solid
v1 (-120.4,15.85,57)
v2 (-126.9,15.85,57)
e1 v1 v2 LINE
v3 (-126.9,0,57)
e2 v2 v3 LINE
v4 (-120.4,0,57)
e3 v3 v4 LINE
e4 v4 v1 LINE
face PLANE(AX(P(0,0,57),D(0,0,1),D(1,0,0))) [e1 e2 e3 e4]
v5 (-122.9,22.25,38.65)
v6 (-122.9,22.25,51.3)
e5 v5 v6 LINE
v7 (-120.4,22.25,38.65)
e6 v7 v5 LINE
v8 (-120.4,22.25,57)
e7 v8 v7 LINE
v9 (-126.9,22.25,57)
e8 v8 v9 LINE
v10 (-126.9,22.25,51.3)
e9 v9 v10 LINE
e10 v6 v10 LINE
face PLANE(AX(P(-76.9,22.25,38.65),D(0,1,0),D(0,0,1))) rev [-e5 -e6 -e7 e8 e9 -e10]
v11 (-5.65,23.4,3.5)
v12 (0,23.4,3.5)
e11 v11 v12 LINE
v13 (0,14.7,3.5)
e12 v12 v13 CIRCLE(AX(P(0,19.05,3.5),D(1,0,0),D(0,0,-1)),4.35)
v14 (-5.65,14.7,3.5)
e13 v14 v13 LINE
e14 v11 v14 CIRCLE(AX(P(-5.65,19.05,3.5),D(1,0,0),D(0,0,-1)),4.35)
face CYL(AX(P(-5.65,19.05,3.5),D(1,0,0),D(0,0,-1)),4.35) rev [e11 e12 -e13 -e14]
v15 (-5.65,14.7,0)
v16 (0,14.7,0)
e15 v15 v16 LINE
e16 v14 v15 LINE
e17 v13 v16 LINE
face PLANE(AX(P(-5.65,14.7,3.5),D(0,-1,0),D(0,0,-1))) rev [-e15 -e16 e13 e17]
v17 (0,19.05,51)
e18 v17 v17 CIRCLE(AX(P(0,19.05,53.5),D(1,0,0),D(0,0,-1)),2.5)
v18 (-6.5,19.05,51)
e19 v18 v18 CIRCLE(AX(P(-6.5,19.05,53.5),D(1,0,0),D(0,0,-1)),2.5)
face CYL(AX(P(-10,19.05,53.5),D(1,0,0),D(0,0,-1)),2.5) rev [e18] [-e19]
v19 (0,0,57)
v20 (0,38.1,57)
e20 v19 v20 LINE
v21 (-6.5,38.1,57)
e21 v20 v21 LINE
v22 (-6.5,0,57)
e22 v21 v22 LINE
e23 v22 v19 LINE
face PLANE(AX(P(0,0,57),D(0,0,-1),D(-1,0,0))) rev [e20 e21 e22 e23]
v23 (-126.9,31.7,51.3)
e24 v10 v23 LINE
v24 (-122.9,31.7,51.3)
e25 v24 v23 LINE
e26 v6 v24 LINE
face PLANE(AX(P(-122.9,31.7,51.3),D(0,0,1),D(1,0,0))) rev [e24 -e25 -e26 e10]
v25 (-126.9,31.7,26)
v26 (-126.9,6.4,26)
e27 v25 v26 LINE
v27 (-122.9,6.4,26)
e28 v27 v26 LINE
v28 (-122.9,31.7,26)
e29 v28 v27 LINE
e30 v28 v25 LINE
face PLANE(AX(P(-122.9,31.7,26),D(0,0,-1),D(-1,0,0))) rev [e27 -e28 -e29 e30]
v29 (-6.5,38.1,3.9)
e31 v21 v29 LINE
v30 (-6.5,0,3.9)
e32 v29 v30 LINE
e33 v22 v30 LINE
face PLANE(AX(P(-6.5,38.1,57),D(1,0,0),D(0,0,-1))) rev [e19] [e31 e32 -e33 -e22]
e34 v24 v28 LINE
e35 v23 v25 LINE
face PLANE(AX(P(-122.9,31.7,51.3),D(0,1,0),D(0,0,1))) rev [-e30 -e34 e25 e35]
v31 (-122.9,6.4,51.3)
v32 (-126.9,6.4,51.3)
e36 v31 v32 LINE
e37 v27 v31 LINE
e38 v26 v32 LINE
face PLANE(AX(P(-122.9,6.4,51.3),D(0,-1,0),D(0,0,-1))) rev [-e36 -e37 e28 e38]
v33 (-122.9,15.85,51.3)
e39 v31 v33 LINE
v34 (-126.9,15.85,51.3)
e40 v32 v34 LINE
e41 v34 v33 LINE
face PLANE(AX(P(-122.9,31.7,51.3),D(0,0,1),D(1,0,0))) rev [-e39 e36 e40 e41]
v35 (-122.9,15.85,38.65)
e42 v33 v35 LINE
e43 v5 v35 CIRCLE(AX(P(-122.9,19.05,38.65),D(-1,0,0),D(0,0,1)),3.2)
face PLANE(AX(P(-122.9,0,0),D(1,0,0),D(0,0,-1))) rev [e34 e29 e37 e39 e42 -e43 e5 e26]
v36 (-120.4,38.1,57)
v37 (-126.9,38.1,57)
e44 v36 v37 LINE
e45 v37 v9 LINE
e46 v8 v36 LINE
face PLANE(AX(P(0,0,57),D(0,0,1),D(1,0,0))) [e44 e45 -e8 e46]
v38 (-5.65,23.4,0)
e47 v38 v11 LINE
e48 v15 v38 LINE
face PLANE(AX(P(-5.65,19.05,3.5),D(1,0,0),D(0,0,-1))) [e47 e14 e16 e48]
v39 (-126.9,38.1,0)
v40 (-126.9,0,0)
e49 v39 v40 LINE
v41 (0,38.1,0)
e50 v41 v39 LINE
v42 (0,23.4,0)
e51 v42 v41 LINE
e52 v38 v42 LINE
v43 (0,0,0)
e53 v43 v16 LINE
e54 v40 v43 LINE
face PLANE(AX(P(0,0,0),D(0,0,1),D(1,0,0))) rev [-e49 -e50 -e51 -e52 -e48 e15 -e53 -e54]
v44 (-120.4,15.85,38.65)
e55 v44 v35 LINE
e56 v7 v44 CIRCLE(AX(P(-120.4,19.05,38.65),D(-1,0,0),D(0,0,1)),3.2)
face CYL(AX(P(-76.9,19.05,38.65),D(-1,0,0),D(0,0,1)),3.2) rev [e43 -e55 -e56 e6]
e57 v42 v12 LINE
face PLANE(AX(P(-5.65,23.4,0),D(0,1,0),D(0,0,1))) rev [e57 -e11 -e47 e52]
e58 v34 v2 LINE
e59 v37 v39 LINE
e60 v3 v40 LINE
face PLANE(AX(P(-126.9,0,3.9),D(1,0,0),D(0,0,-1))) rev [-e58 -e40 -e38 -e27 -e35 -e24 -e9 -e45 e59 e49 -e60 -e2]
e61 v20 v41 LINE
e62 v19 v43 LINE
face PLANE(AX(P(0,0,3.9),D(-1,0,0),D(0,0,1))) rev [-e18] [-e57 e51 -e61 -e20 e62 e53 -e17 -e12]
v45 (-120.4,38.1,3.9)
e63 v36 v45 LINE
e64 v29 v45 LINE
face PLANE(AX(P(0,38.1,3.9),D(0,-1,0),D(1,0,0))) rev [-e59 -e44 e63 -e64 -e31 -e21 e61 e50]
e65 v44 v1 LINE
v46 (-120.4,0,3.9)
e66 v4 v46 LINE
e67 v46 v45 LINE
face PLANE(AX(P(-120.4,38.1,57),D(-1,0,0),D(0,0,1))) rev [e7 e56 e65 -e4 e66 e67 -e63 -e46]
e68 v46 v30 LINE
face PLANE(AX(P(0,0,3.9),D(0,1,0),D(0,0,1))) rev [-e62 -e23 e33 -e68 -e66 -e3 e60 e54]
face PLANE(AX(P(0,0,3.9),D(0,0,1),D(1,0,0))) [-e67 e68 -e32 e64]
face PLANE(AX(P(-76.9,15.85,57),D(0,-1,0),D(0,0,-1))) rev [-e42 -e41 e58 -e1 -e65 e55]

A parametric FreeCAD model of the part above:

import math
import FreeCAD as App
import Part
import Sketcher
from FreeCAD import Vector

doc = App.newDocument("Part")
body = doc.addObject("PartDesign::Body", "Body")

# Sketch on XY plane
sketch1 = body.newObject("Sketcher::SketchObject", "Sketch")
sketch1.AttachmentSupport = (doc.getObject("XY_Plane"), [""])
sketch1.MapMode = "FlatFace"
sketch1.addGeometry(Part.LineSegment(Vector(-127, 38, 0), Vector(-127, 0, 0)), False)
sketch1.addGeometry(Part.LineSegment(Vector(-127, 0, 0), Vector(0, 0, 0)), False)
sketch1.addGeometry(Part.LineSegment(Vector(0, 0, 0), Vector(0, 38, 0)), False)
sketch1.addGeometry(Part.LineSegment(Vector(0, 38, 0), Vector(-127, 38, 0)), False)
sketch1.addConstraint(Sketcher.Constraint("Coincident", 0, 2, 1, 1))
sketch1.addConstraint(Sketcher.Constraint("Coincident", 1, 2, 2, 1))
sketch1.addConstraint(Sketcher.Constraint("Coincident", 2, 2, 3, 1))
sketch1.addConstraint(Sketcher.Constraint("Coincident", 3, 2, 0, 1))
sketch1.addConstraint(Sketcher.Constraint("Vertical", 0))
sketch1.addConstraint(Sketcher.Constraint("Horizontal", 1))
sketch1.addConstraint(Sketcher.Constraint("Vertical", 2))
sketch1.addConstraint(Sketcher.Constraint("Horizontal", 3))
sketch1.addConstraint(Sketcher.Constraint("Coincident", 1, 2, -1, 1))
sketch1.addConstraint(Sketcher.Constraint("DistanceX", 1, 1, 1, 2, 126.9))
sketch1.addConstraint(Sketcher.Constraint("DistanceY", 0, 2, 0, 1, 38.1))
pad1 = body.newObject("PartDesign::Pad", "Pad")
pad1.Profile = sketch1
pad1.Length = 3.9

# Sketch on XY plane
sketch2 = body.newObject("Sketcher::SketchObject", "Sketch001")
sketch2.AttachmentSupport = (doc.getObject("XY_Plane"), [""])
sketch2.MapMode = "FlatFace"
sketch2.AttachmentOffset = App.Placement(Vector(0, 0, 3.9), App.Rotation())
sketch2.addGeometry(Part.LineSegment(Vector(-127, 38, 0), Vector(-127, 0, 0)), False)
sketch2.addGeometry(Part.LineSegment(Vector(-127, 0, 0), Vector(-120, 0, 0)), False)
sketch2.addGeometry(Part.LineSegment(Vector(-120, 0, 0), Vector(-120, 38, 0)), False)
sketch2.addGeometry(Part.LineSegment(Vector(-120, 38, 0), Vector(-127, 38, 0)), False)
sketch2.addGeometry(Part.LineSegment(Vector(-6, 38, 0), Vector(-6, 0, 0)), False)
sketch2.addGeometry(Part.LineSegment(Vector(-6, 0, 0), Vector(0, 0, 0)), False)
sketch2.addGeometry(Part.LineSegment(Vector(0, 0, 0), Vector(0, 38, 0)), False)
sketch2.addGeometry(Part.LineSegment(Vector(0, 38, 0), Vector(-6, 38, 0)), False)
sketch2.addConstraint(Sketcher.Constraint("Coincident", 0, 2, 1, 1))
sketch2.addConstraint(Sketcher.Constraint("Coincident", 1, 2, 2, 1))
sketch2.addConstraint(Sketcher.Constraint("Coincident", 2, 2, 3, 1))
sketch2.addConstraint(Sketcher.Constraint("Coincident", 3, 2, 0, 1))
sketch2.addConstraint(Sketcher.Constraint("Coincident", 4, 2, 5, 1))
sketch2.addConstraint(Sketcher.Constraint("Coincident", 5, 2, 6, 1))
sketch2.addConstraint(Sketcher.Constraint("Coincident", 6, 2, 7, 1))
sketch2.addConstraint(Sketcher.Constraint("Coincident", 7, 2, 4, 1))
sketch2.addConstraint(Sketcher.Constraint("Vertical", 0))
sketch2.addConstraint(Sketcher.Constraint("Horizontal", 1))
sketch2.addConstraint(Sketcher.Constraint("Vertical", 2))
sketch2.addConstraint(Sketcher.Constraint("Horizontal", 3))
sketch2.addConstraint(Sketcher.Constraint("Vertical", 4))
sketch2.addConstraint(Sketcher.Constraint("Horizontal", 5))
sketch2.addConstraint(Sketcher.Constraint("Vertical", 6))
sketch2.addConstraint(Sketcher.Constraint("Horizontal", 7))
sketch2.addConstraint(Sketcher.Constraint("Coincident", 5, 2, -1, 1))
sketch2.addConstraint(Sketcher.Constraint("PointOnObject", 0, 2, -1))
sketch2.addConstraint(Sketcher.Constraint("Horizontal", 3, 2, 6, 2))
sketch2.addConstraint(Sketcher.Constraint("Equal", 3, 5))
sketch2.addConstraint(Sketcher.Constraint("DistanceX", 1, 1, 1, 2, 6.5))
sketch2.addConstraint(Sketcher.Constraint("DistanceY", 0, 2, 0, 1, 38.1))
sketch2.addConstraint(Sketcher.Constraint("DistanceX", 0, 2, -1, 1, 126.9))
pad2 = body.newObject("PartDesign::Pad", "Pad001")
pad2.Profile = sketch2
pad2.Length = 53.1

# Sketch on YZ plane
sketch3 = body.newObject("Sketcher::SketchObject", "Sketch002")
sketch3.AttachmentSupport = (doc.getObject("YZ_Plane"), [""])
sketch3.MapMode = "FlatFace"
sketch3.AttachmentOffset = App.Placement(Vector(0, 0, -126.9), App.Rotation())
sketch3.addGeometry(Part.LineSegment(Vector(31.7, 26, 0), Vector(6.4, 26, 0)), False)
sketch3.addGeometry(Part.LineSegment(Vector(6.4, 26, 0), Vector(6.4, 51.3, 0)), False)
sketch3.addGeometry(Part.LineSegment(Vector(6.4, 51.3, 0), Vector(31.7, 51.3, 0)), False)
sketch3.addGeometry(Part.LineSegment(Vector(31.7, 51.3, 0), Vector(31.7, 26, 0)), False)
sketch3.addGeometry(Part.Circle(Vector(19.1, 38.6, 0), Vector(0, 0, 1), 3.2), False)
sketch3.addConstraint(Sketcher.Constraint("Coincident", 0, 2, 1, 1))
sketch3.addConstraint(Sketcher.Constraint("Coincident", 1, 2, 2, 1))
sketch3.addConstraint(Sketcher.Constraint("Coincident", 2, 2, 3, 1))
sketch3.addConstraint(Sketcher.Constraint("Coincident", 3, 2, 0, 1))
sketch3.addConstraint(Sketcher.Constraint("Horizontal", 0))
sketch3.addConstraint(Sketcher.Constraint("Vertical", 1))
sketch3.addConstraint(Sketcher.Constraint("Horizontal", 2))
sketch3.addConstraint(Sketcher.Constraint("Vertical", 3))
sketch3.addConstraint(Sketcher.Constraint("Equal", 2, 1))
sketch3.addConstraint(Sketcher.Constraint("Diameter", 4, 6.4))
sketch3.addConstraint(Sketcher.Constraint("DistanceX", 0, 2, 0, 1, 25.3))
sketch3.addConstraint(Sketcher.Constraint("DistanceY", -1, 1, 0, 2, 26.0))
sketch3.addConstraint(Sketcher.Constraint("DistanceX", -1, 1, 0, 2, 6.4))
sketch3.addConstraint(Sketcher.Constraint("DistanceX", -1, 1, 4, 3, 19.05))
sketch3.addConstraint(Sketcher.Constraint("DistanceY", -1, 1, 4, 3, 38.65))
pocket1 = body.newObject("PartDesign::Pocket", "Pocket")
pocket1.Profile = sketch3
pocket1.Length = 4
pocket1.Reversed = True

# Sketch on YZ plane
sketch4 = body.newObject("Sketcher::SketchObject", "Sketch003")
sketch4.AttachmentSupport = (doc.getObject("YZ_Plane"), [""])
sketch4.MapMode = "FlatFace"
sketch4.AttachmentOffset = App.Placement(Vector(0, 0, -126.9), App.Rotation())
sketch4.addGeometry(Part.LineSegment(Vector(22.2, 57, 0), Vector(22.2, 38.6, 0)), False)
sketch4.addGeometry(Part.ArcOfCircle(Part.Circle(Vector(19.1, 38.6, 0), Vector(0, 0, 1), 3.2), math.radians(180), math.radians(360)), False)
sketch4.addGeometry(Part.LineSegment(Vector(15.8, 38.6, 0), Vector(15.8, 57, 0)), False)
sketch4.addGeometry(Part.LineSegment(Vector(15.8, 57, 0), Vector(22.2, 57, 0)), False)
sketch4.addConstraint(Sketcher.Constraint("Tangent", 0, 2, 1, 2))
sketch4.addConstraint(Sketcher.Constraint("Tangent", 1, 1, 2, 1))
sketch4.addConstraint(Sketcher.Constraint("Coincident", 2, 2, 3, 1))
sketch4.addConstraint(Sketcher.Constraint("Coincident", 3, 2, 0, 1))
sketch4.addConstraint(Sketcher.Constraint("Vertical", 0))
sketch4.addConstraint(Sketcher.Constraint("Vertical", 2))
sketch4.addConstraint(Sketcher.Constraint("Horizontal", 3))
sketch4.addConstraint(Sketcher.Constraint("Radius", 1, 3.2))
sketch4.addConstraint(Sketcher.Constraint("DistanceY", -1, 1, 2, 2, 57.0))
sketch4.addConstraint(Sketcher.Constraint("DistanceY", 0, 2, 0, 1, 18.35))
sketch4.addConstraint(Sketcher.Constraint("DistanceX", -1, 1, 1, 3, 19.05))
pocket2 = body.newObject("PartDesign::Pocket", "Pocket001")
pocket2.Profile = sketch4
pocket2.Length = 50
pocket2.Reversed = True

# Sketch on YZ plane
sketch5 = body.newObject("Sketcher::SketchObject", "Sketch004")
sketch5.AttachmentSupport = (doc.getObject("YZ_Plane"), [""])
sketch5.MapMode = "FlatFace"
sketch5.addGeometry(Part.LineSegment(Vector(14.7, 3.5, 0), Vector(14.7, 0, 0)), False)
sketch5.addGeometry(Part.LineSegment(Vector(14.7, 0, 0), Vector(23.4, 0, 0)), False)
sketch5.addGeometry(Part.LineSegment(Vector(23.4, 0, 0), Vector(23.4, 3.5, 0)), False)
sketch5.addGeometry(Part.ArcOfCircle(Part.Circle(Vector(19.1, 3.5, 0), Vector(0, 0, 1), 4.3), math.radians(0), math.radians(180)), False)
sketch5.addConstraint(Sketcher.Constraint("Coincident", 0, 2, 1, 1))
sketch5.addConstraint(Sketcher.Constraint("Coincident", 1, 2, 2, 1))
sketch5.addConstraint(Sketcher.Constraint("Tangent", 2, 2, 3, 1))
sketch5.addConstraint(Sketcher.Constraint("Tangent", 3, 2, 0, 1))
sketch5.addConstraint(Sketcher.Constraint("Vertical", 0))
sketch5.addConstraint(Sketcher.Constraint("Horizontal", 1))
sketch5.addConstraint(Sketcher.Constraint("Vertical", 2))
sketch5.addConstraint(Sketcher.Constraint("PointOnObject", 0, 2, -1))
sketch5.addConstraint(Sketcher.Constraint("Radius", 3, 4.35))
sketch5.addConstraint(Sketcher.Constraint("DistanceY", 0, 2, 0, 1, 3.5))
sketch5.addConstraint(Sketcher.Constraint("DistanceX", -1, 1, 0, 2, 14.7))
pocket3 = body.newObject("PartDesign::Pocket", "Pocket002")
pocket3.Profile = sketch5
pocket3.Length = 5.65

# Sketch on YZ plane
sketch6 = body.newObject("Sketcher::SketchObject", "Sketch005")
sketch6.AttachmentSupport = (doc.getObject("YZ_Plane"), [""])
sketch6.MapMode = "FlatFace"
sketch6.addGeometry(Part.Circle(Vector(19.1, 53.5, 0), Vector(0, 0, 1), 2.5), False)
sketch6.addConstraint(Sketcher.Constraint("Diameter", 0, 5.0))
sketch6.addConstraint(Sketcher.Constraint("DistanceY", -1, 1, 0, 3, 53.5))
sketch6.addConstraint(Sketcher.Constraint("DistanceX", -1, 1, 0, 3, 19.05))
pocket4 = body.newObject("PartDesign::Pocket", "Pocket003")
pocket4.Profile = sketch6
pocket4.Length = 10

doc.recompute()
